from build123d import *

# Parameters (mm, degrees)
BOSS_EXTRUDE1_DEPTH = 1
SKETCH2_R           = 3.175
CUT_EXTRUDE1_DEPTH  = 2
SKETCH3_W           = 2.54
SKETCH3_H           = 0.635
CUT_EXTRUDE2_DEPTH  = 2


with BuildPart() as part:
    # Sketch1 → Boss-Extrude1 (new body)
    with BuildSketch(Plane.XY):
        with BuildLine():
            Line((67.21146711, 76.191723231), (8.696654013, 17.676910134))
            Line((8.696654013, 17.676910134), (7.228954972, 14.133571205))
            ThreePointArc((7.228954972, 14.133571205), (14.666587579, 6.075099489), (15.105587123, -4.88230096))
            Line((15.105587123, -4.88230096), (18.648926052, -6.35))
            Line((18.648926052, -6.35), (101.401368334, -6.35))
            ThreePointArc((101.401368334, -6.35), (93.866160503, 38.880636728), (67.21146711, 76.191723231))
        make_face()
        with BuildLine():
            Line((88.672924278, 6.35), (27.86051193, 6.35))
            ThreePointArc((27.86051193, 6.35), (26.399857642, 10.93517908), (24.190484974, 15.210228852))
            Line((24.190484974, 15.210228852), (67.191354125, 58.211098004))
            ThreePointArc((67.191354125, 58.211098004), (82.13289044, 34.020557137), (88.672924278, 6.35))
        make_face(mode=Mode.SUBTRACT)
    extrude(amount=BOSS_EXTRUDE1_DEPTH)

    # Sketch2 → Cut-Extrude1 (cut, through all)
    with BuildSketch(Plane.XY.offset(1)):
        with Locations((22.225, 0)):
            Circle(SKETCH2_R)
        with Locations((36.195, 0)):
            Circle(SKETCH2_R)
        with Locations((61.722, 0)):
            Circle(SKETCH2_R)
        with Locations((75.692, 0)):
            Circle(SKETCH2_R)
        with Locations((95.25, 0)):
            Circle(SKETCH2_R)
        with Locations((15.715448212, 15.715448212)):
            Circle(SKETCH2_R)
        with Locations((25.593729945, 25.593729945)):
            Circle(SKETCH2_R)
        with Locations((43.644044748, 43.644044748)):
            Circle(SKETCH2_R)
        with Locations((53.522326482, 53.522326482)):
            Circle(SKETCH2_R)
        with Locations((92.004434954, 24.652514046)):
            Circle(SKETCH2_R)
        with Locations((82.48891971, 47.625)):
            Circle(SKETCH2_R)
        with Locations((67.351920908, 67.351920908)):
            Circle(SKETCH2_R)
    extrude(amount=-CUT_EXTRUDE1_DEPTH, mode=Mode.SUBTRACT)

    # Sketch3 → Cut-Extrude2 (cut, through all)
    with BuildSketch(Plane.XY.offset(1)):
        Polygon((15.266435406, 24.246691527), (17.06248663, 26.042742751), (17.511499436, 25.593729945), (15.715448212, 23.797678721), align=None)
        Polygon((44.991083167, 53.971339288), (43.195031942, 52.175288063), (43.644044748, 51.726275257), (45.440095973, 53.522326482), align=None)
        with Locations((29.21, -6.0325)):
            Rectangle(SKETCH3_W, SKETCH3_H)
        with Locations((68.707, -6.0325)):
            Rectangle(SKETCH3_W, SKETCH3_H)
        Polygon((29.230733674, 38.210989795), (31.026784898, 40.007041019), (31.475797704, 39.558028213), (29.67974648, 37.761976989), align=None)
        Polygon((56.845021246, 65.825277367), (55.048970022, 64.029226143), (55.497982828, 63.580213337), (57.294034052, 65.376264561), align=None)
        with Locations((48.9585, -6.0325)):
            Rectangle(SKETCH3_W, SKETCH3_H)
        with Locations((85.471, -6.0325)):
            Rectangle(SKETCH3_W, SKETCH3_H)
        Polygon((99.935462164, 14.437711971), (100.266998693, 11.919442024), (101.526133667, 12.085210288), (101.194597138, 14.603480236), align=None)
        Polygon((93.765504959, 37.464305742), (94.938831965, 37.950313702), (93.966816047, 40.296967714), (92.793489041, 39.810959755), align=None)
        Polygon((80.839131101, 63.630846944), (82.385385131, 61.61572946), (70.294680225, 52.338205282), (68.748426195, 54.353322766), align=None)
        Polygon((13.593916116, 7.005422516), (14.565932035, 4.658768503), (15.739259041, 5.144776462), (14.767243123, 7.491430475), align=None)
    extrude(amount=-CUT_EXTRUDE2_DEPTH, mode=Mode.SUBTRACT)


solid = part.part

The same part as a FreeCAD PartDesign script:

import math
import FreeCAD as App
import Part
import Sketcher

V = App.Vector
Q = App.Units.Quantity

doc = App.newDocument("Part")
body = doc.addObject("PartDesign::Body", "Body")

sketch1 = body.newObject("Sketcher::SketchObject", "Sketch")
sketch1.AttachmentSupport = (doc.getObject("XY_Plane"), [""])
sketch1.MapMode = "FlatFace"
sketch1.addGeometry([
    Part.LineSegment(V(67.2, 76.2, 0), V(8.7, 17.7, 0)),
    Part.LineSegment(V(8.7, 17.7, 0), V(7.2, 14.1, 0)),
    Part.ArcOfCircle(Part.Circle(V(0, 0, 0), V(0, 0, 1), 15.9), math.radians(-18), math.radians(63)),
    Part.LineSegment(V(15.1, -4.9, 0), V(18.6, -6.3, 0)),
    Part.LineSegment(V(18.6, -6.3, 0), V(101.4, -6.3, 0)),
    Part.ArcOfCircle(Part.Circle(V(0, 0, 0), V(0, 0, 1), 101.6), math.radians(-4), math.radians(49)),
    Part.ArcOfCircle(Part.Circle(V(0, 0, 0), V(0, 0, 1), 88.9), math.radians(4), math.radians(41)),
    Part.LineSegment(V(88.7, 6.3, 0), V(27.9, 6.3, 0)),
    Part.ArcOfCircle(Part.Circle(V(0, 0, 0), V(0, 0, 1), 28.6), math.radians(12.84), math.radians(32.16)),
    Part.LineSegment(V(24.2, 15.2, 0), V(67.2, 58.2, 0)),
], False)
sketch1.addConstraint([
    Sketcher.Constraint("Coincident", 0, 2, 1, 1),
    Sketcher.Constraint("Coincident", 1, 2, 2, 2),
    Sketcher.Constraint("Coincident", 2, 1, 3, 1),
    Sketcher.Constraint("Coincident", 3, 2, 4, 1),
    Sketcher.Constraint("Coincident", 4, 2, 5, 1),
    Sketcher.Constraint("Coincident", 5, 2, 0, 1),
    Sketcher.Constraint("Coincident", 6, 1, 7, 1),
    Sketcher.Constraint("Coincident", 7, 2, 8, 1),
    Sketcher.Constraint("Coincident", 8, 2, 9, 1),
    Sketcher.Constraint("Coincident", 9, 2, 6, 2),
    Sketcher.Constraint("Horizontal", 4),
    Sketcher.Constraint("Horizontal", 7),
    Sketcher.Constraint("Coincident", 2, 3, -1, 1),
    Sketcher.Constraint("Coincident", 5, 3, -1, 1),
    Sketcher.Constraint("Coincident", 6, 3, -1, 1),
    Sketcher.Constraint("Coincident", 8, 3, -1, 1),
    Sketcher.Constraint("Perpendicular", 1, 3),
    Sketcher.Constraint("Parallel", 0, 9),
    Sketcher.Constraint("Equal", 1, 3),
    Sketcher.Constraint("Radius", 5, Q("4 in")),
    Sketcher.Constraint("Radius", 6, Q("3.5 in")),
    Sketcher.Constraint("Angle", 0, Q("-135 deg")),
    Sketcher.Constraint("Radius", 2, Q("0.625 in")),
    Sketcher.Constraint("Radius", 8, Q("1.125 in")),
    Sketcher.Constraint("Angle", 1, Q("-112.5 deg")),
    Sketcher.Constraint("DistanceY", 4, 2, 6, 1, Q("0.5 in")),
    Sketcher.Constraint("DistanceY", 3, 2, -1, 1, Q("0.25 in")),
    Sketcher.Constraint("DistanceY", 2, 1, -1, 1, 4.882301),
    Sketcher.Constraint("DistanceY", -1, 1, 9, 2, 58.211098),
    Sketcher.Constraint("DistanceX", 5, 2, 4, 2, 34.189901),
])
pad1 = body.newObject("PartDesign::Pad", "Pad")
pad1.Profile = sketch1
pad1.Length = 1

sketch2 = body.newObject("Sketcher::SketchObject", "Sketch001")
sketch2.AttachmentSupport = (doc.getObject("XY_Plane"), [""])
sketch2.MapMode = "FlatFace"
sketch2.AttachmentOffset = App.Placement(V(0, 0, 1), App.Rotation())
sketch2.addGeometry([
    Part.Circle(V(22.2, 0, 0), V(0, 0, 1), 3.2),
    Part.Circle(V(36.2, 0, 0), V(0, 0, 1), 3.2),
    Part.Circle(V(61.7, 0, 0), V(0, 0, 1), 3.2),
    Part.Circle(V(75.7, 0, 0), V(0, 0, 1), 3.2),
    Part.Circle(V(95.2, 0, 0), V(0, 0, 1), 3.2),
    Part.Circle(V(15.7, 15.7, 0), V(0, 0, 1), 3.2),
    Part.Circle(V(25.6, 25.6, 0), V(0, 0, 1), 3.2),
    Part.Circle(V(43.6, 43.6, 0), V(0, 0, 1), 3.2),
    Part.Circle(V(53.5, 53.5, 0), V(0, 0, 1), 3.2),
    Part.Circle(V(92, 24.7, 0), V(0, 0, 1), 3.2),
    Part.Circle(V(82.5, 47.6, 0), V(0, 0, 1), 3.2),
    Part.Circle(V(67.4, 67.4, 0), V(0, 0, 1), 3.2),
], False)
sketch2.addConstraint([
    Sketcher.Constraint("Equal", 0, 1),
    Sketcher.Constraint("Equal", 1, 2),
    Sketcher.Constraint("Equal", 2, 3),
    Sketcher.Constraint("Equal", 3, 4),
    Sketcher.Constraint("Equal", 4, 5),
    Sketcher.Constraint("Equal", 5, 6),
    Sketcher.Constraint("Equal", 6, 7),
    Sketcher.Constraint("Equal", 7, 8),
    Sketcher.Constraint("Equal", 8, 9),
    Sketcher.Constraint("Equal", 9, 10),
    Sketcher.Constraint("Equal", 10, 11),
    Sketcher.Constraint("PointOnObject", 0, 3, -1),
    Sketcher.Constraint("PointOnObject", 1, 3, -1),
    Sketcher.Constraint("PointOnObject", 2, 3, -1),
    Sketcher.Constraint("PointOnObject", 3, 3, -1),
    Sketcher.Constraint("PointOnObject", 4, 3, -1),
    Sketcher.Constraint("Diameter", 0, Q("0.25 in")),
    Sketcher.Constraint("DistanceX", -1, 1, 2, 3, Q("2.43 in")),
    Sketcher.Constraint("DistanceX", -1, 1, 3, 3, Q("2.98 in")),
    Sketcher.Constraint("DistanceX", -1, 1, 4, 3, Q("3.75 in")),
    Sketcher.Constraint("DistanceX", 0, 3, 1, 3, Q("0.55 in")),
    Sketcher.Constraint("DistanceX", -1, 1, 0, 3, Q("0.875 in")),
    Sketcher.Constraint("DistanceY", -1, 1, 10, 3, Q("1.875 in")),
    Sketcher.Constraint("DistanceX", 11, 3, 10, 3, 15.136999),
    Sketcher.Constraint("DistanceX", -1, 1, 5, 3, 15.715448),
    Sketcher.Constraint("DistanceY", -1, 1, 5, 3, 15.715448),
    Sketcher.Constraint("DistanceX", -1, 1, 6, 3, 25.59373),
    Sketcher.Constraint("DistanceY", -1, 1, 6, 3, 25.59373),
    Sketcher.Constraint("DistanceX", -1, 1, 10, 3, 82.48892),
    Sketcher.Constraint("DistanceY", -1, 1, 11, 3, 67.351921),
    Sketcher.Constraint("DistanceX", 7, 3, 8, 3, 9.878282),
    Sketcher.Constraint("DistanceY", 7, 3, 8, 3, 9.878282),
    Sketcher.Constraint("DistanceX", 5, 3, 8, 3, 37.806878),
    Sketcher.Constraint("DistanceY", 5, 3, 8, 3, 37.806878),
    Sketcher.Constraint("DistanceX", 8, 3, 9, 3, 38.482108),
    Sketcher.Constraint("DistanceY", 9, 3, 7, 3, 18.991531),
])
pocket1 = body.newObject("PartDesign::Pocket", "Pocket")
pocket1.Profile = sketch2
pocket1.Type = "ThroughAll"

sketch3 = body.newObject("Sketcher::SketchObject", "Sketch002")
sketch3.AttachmentSupport = (doc.getObject("XY_Plane"), [""])
sketch3.MapMode = "FlatFace"
sketch3.AttachmentOffset = App.Placement(V(0, 0, 1), App.Rotation())
sketch3.addGeometry([
    Part.LineSegment(V(17.1, 26, 0), V(15.3, 24.2, 0)),
    Part.LineSegment(V(15.3, 24.2, 0), V(15.7, 23.8, 0)),
    Part.LineSegment(V(15.7, 23.8, 0), V(17.5, 25.6, 0)),
    Part.LineSegment(V(17.5, 25.6, 0), V(17.1, 26, 0)),
    Part.LineSegment(V(45, 54, 0), V(43.2, 52.2, 0)),
    Part.LineSegment(V(43.2, 52.2, 0), V(43.6, 51.7, 0)),
    Part.LineSegment(V(43.6, 51.7, 0), V(45.4, 53.5, 0)),
    Part.LineSegment(V(45.4, 53.5, 0), V(45, 54, 0)),
    Part.LineSegment(V(27.9, -5.7, 0), V(27.9, -6.3, 0)),
    Part.LineSegment(V(27.9, -6.3, 0), V(30.5, -6.3, 0)),
    Part.LineSegment(V(30.5, -6.3, 0), V(30.5, -5.7, 0)),
    Part.LineSegment(V(30.5, -5.7, 0), V(27.9, -5.7, 0)),
    Part.LineSegment(V(67.4, -5.7, 0), V(67.4, -6.3, 0)),
    Part.LineSegment(V(67.4, -6.3, 0), V(70, -6.3, 0)),
    Part.LineSegment(V(70, -6.3, 0), V(70, -5.7, 0)),
    Part.LineSegment(V(70, -5.7, 0), V(67.4, -5.7, 0)),
    Part.LineSegment(V(31, 40, 0), V(29.2, 38.2, 0)),
    Part.LineSegment(V(29.2, 38.2, 0), V(29.7, 37.8, 0)),
    Part.LineSegment(V(29.7, 37.8, 0), V(31.5, 39.6, 0)),
    Part.LineSegment(V(31.5, 39.6, 0), V(31, 40, 0)),
    Part.LineSegment(V(56.8, 65.8, 0), V(55, 64, 0)),
    Part.LineSegment(V(55, 64, 0), V(55.5, 63.6, 0)),
    Part.LineSegment(V(55.5, 63.6, 0), V(57.3, 65.4, 0)),
    Part.LineSegment(V(57.3, 65.4, 0), V(56.8, 65.8, 0)),
    Part.LineSegment(V(47.7, -5.7, 0), V(47.7, -6.3, 0)),
    Part.LineSegment(V(47.7, -6.3, 0), V(50.2, -6.3, 0)),
    Part.LineSegment(V(50.2, -6.3, 0), V(50.2, -5.7, 0)),
    Part.LineSegment(V(50.2, -5.7, 0), V(47.7, -5.7, 0)),
    Part.LineSegment(V(84.2, -5.7, 0), V(84.2, -6.3, 0)),
    Part.LineSegment(V(84.2, -6.3, 0), V(86.7, -6.3, 0)),
    Part.LineSegment(V(86.7, -6.3, 0), V(86.7, -5.7, 0)),
    Part.LineSegment(V(86.7, -5.7, 0), V(84.2, -5.7, 0)),
    Part.LineSegment(V(99.9, 14.4, 0), V(100.3, 11.9, 0)),
    Part.LineSegment(V(100.3, 11.9, 0), V(101.5, 12.1, 0)),
    Part.LineSegment(V(101.5, 12.1, 0), V(101.2, 14.6, 0)),
    Part.LineSegment(V(101.2, 14.6, 0), V(99.9, 14.4, 0)),
    Part.LineSegment(V(93.8, 37.5, 0), V(94.9, 38, 0)),
    Part.LineSegment(V(94.9, 38, 0), V(94, 40.3, 0)),
    Part.LineSegment(V(94, 40.3, 0), V(92.8, 39.8, 0)),
    Part.LineSegment(V(92.8, 39.8, 0), V(93.8, 37.5, 0)),
    Part.LineSegment(V(82.4, 61.6, 0), V(80.8, 63.6, 0)),
    Part.LineSegment(V(80.8, 63.6, 0), V(68.7, 54.4, 0)),
    Part.LineSegment(V(68.7, 54.4, 0), V(70.3, 52.3, 0)),
    Part.LineSegment(V(70.3, 52.3, 0), V(82.4, 61.6, 0)),
    Part.LineSegment(V(13.6, 7, 0), V(14.6, 4.7, 0)),
    Part.LineSegment(V(14.6, 4.7, 0), V(15.7, 5.1, 0)),
    Part.LineSegment(V(15.7, 5.1, 0), V(14.8, 7.5, 0)),
    Part.LineSegment(V(14.8, 7.5, 0), V(13.6, 7, 0)),
], False)
sketch3.addConstraint([
    Sketcher.Constraint("Coincident", 0, 2, 1, 1),
    Sketcher.Constraint("Coincident", 1, 2, 2, 1),
    Sketcher.Constraint("Coincident", 2, 2, 3, 1),
    Sketcher.Constraint("Coincident", 3, 2, 0, 1),
    Sketcher.Constraint("Coincident", 4, 2, 5, 1),
    Sketcher.Constraint("Coincident", 5, 2, 6, 1),
    Sketcher.Constraint("Coincident", 6, 2, 7, 1),
    Sketcher.Constraint("Coincident", 7, 2, 4, 1),
    Sketcher.Constraint("Coincident", 8, 2, 9, 1),
    Sketcher.Constraint("Coincident", 9, 2, 10, 1),
    Sketcher.Constraint("Coincident", 10, 2, 11, 1),
    Sketcher.Constraint("Coincident", 11, 2, 8, 1),
    Sketcher.Constraint("Coincident", 12, 2, 13, 1),
    Sketcher.Constraint("Coincident", 13, 2, 14, 1),
    Sketcher.Constraint("Coincident", 14, 2, 15, 1),
    Sketcher.Constraint("Coincident", 15, 2, 12, 1),
    Sketcher.Constraint("Coincident", 16, 2, 17, 1),
    Sketcher.Constraint("Coincident", 17, 2, 18, 1),
    Sketcher.Constraint("Coincident", 18, 2, 19, 1),
    Sketcher.Constraint("Coincident", 19, 2, 16, 1),
    Sketcher.Constraint("Coincident", 20, 2, 21, 1),
    Sketcher.Constraint("Coincident", 21, 2, 22, 1),
    Sketcher.Constraint("Coincident", 22, 2, 23, 1),
    Sketcher.Constraint("Coincident", 23, 2, 20, 1),
    Sketcher.Constraint("Coincident", 24, 2, 25, 1),
    Sketcher.Constraint("Coincident", 25, 2, 26, 1),
    Sketcher.Constraint("Coincident", 26, 2, 27, 1),
    Sketcher.Constraint("Coincident", 27, 2, 24, 1),
    Sketcher.Constraint("Coincident", 28, 2, 29, 1),
    Sketcher.Constraint("Coincident", 29, 2, 30, 1),
    Sketcher.Constraint("Coincident", 30, 2, 31, 1),
    Sketcher.Constraint("Coincident", 31, 2, 28, 1),
    Sketcher.Constraint("Coincident", 32, 2, 33, 1),
    Sketcher.Constraint("Coincident", 33, 2, 34, 1),
    Sketcher.Constraint("Coincident", 34, 2, 35, 1),
    Sketcher.Constraint("Coincident", 35, 2, 32, 1),
    Sketcher.Constraint("Coincident", 36, 2, 37, 1),
    Sketcher.Constraint("Coincident", 37, 2, 38, 1),
    Sketcher.Constraint("Coincident", 38, 2, 39, 1),
    Sketcher.Constraint("Coincident", 39, 2, 36, 1),
    Sketcher.Constraint("Coincident", 40, 2, 41, 1),
    Sketcher.Constraint("Coincident", 41, 2, 42, 1),
    Sketcher.Constraint("Coincident", 42, 2, 43, 1),
    Sketcher.Constraint("Coincident", 43, 2, 40, 1),
    Sketcher.Constraint("Coincident", 44, 2, 45, 1),
    Sketcher.Constraint("Coincident", 45, 2, 46, 1),
    Sketcher.Constraint("Coincident", 46, 2, 47, 1),
    Sketcher.Constraint("Coincident", 47, 2, 44, 1),
    Sketcher.Constraint("Vertical", 8),
    Sketcher.Constraint("Horizontal", 9),
    Sketcher.Constraint("Vertical", 10),
    Sketcher.Constraint("Horizontal", 11),
    Sketcher.Constraint("Vertical", 12),
    Sketcher.Constraint("Horizontal", 13),
    Sketcher.Constraint("Vertical", 14),
    Sketcher.Constraint("Horizontal", 15),
    Sketcher.Constraint("Vertical", 24),
    Sketcher.Constraint("Horizontal", 25),
    Sketcher.Constraint("Vertical", 26),
    Sketcher.Constraint("Horizontal", 27),
    Sketcher.Constraint("Vertical", 28),
    Sketcher.Constraint("Horizontal", 29),
    Sketcher.Constraint("Vertical", 30),
    Sketcher.Constraint("Horizontal", 31),
    Sketcher.Constraint("Perpendicular", 0, 1),
    Sketcher.Constraint("Perpendicular", 1, 2),
    Sketcher.Constraint("Perpendicular", 2, 3),
    Sketcher.Constraint("Perpendicular", 3, 4),
    Sketcher.Constraint("Perpendicular", 4, 5),
    Sketcher.Constraint("Perpendicular", 5, 6),
    Sketcher.Constraint("Perpendicular", 6, 7),
    Sketcher.Constraint("Perpendicular", 7, 16),
    Sketcher.Constraint("Perpendicular", 16, 17),
    Sketcher.Constraint("Perpendicular", 17, 18),
    Sketcher.Constraint("Perpendicular", 18, 19),
    Sketcher.Constraint("Perpendicular", 19, 20),
    Sketcher.Constraint("Perpendicular", 20, 21),
    Sketcher.Constraint("Perpendicular", 21, 22),
    Sketcher.Constraint("Perpendicular", 22, 23),
    Sketcher.Constraint("Perpendicular", 32, 33),
    Sketcher.Constraint("Perpendicular", 33, 34),
    Sketcher.Constraint("Perpendicular", 34, 35),
    Sketcher.Constraint("Perpendicular", 36, 37),
    Sketcher.Constraint("Perpendicular", 37, 38),
    Sketcher.Constraint("Perpendicular", 38, 39),
    Sketcher.Constraint("Perpendicular", 40, 41),
    Sketcher.Constraint("Perpendicular", 41, 42),
    Sketcher.Constraint("Perpendicular", 42, 43),
    Sketcher.Constraint("Parallel", 39, 44),
    Sketcher.Constraint("Perpendicular", 44, 45),
    Sketcher.Constraint("Perpendicular", 45, 46),
    Sketcher.Constraint("Perpendicular", 46, 47),
    Sketcher.Constraint("Horizontal", 9, 2, 12, 2),
    Sketcher.Constraint("Horizontal", 11, 2, 14, 2),
    Sketcher.Constraint("Horizontal", 13, 2, 24, 2),
    Sketcher.Constraint("Horizontal", 15, 2, 26, 2),
    Sketcher.Constraint("Horizontal", 25, 2, 28, 2),
    Sketcher.Constraint("Horizontal", 27, 2, 30, 2),
    Sketcher.Constraint("Equal", 11, 13),
    Sketcher.Constraint("Equal", 15, 25),
    Sketcher.Constraint("Equal", 27, 29),
    Sketcher.Constraint("Equal", 2, 4),
    Sketcher.Constraint("Equal", 3, 5),
    Sketcher.Constraint("Equal", 6, 16),
    Sketcher.Constraint("Equal", 7, 17),
    Sketcher.Constraint("Equal", 18, 20),
    Sketcher.Constraint("Equal", 19, 21),
    Sketcher.Constraint("Equal", 22, 32),
    Sketcher.Constraint("Equal", 35, 36),
    Sketcher.Constraint("Equal", 34, 37),
    Sketcher.Constraint("Equal", 39, 40),
    Sketcher.Constraint("Equal", 42, 44),
    Sketcher.Constraint("Equal", 38, 45),
    Sketcher.Constraint("DistanceX", 9, 1, 9, 2, Q("0.1 in")),
    Sketcher.Constraint("Angle", 0, Q("-135 deg")),
    Sketcher.Constraint("Distance", 0, Q("0.1 in")),
    Sketcher.Constraint("Distance", 41, Q("0.6 in")),
    Sketcher.Constraint("DistanceX", -1, 1, 8, 2, Q("1.1 in")),
    Sketcher.Constraint("Angle", 32, Q("-82.5 deg")),
    Sketcher.Constraint("Angle", 36, Q("22.5 deg")),
    Sketcher.Constraint("Angle", 40, Q("127.5 deg")),
    Sketcher.Constraint("Distance", 33, Q("0.05 in")),
    Sketcher.Constraint("DistanceY", 8, 2, 8, 1, Q("0.025 in")),
    Sketcher.Constraint("DistanceY", 8, 2, -1, 1, Q("0.25 in")),
    Sketcher.Constraint("DistanceX", 13, 2, 28, 2, Q("0.56 in")),
    Sketcher.Constraint("Distance", 1, Q("0.025 in")),
    Sketcher.Constraint("DistanceX", -1, 1, 12, 2, Q("2.655 in")),
    Sketcher.Constraint("DistanceX", -1, 1, 24, 2, Q("1.8775 in")),
    Sketcher.Constraint("DistanceX", -1, 1, 2, 2, 17.511499),
    Sketcher.Constraint("DistanceX", -1, 1, 32, 2, 100.266999),
    Sketcher.Constraint("DistanceX", 16, 2, 4, 2, 13.964298),
    Sketcher.Constraint("DistanceY", 16, 2, 4, 2, 13.964298),
    Sketcher.Constraint("DistanceX", 0, 2, 16, 2, 13.964298),
    Sketcher.Constraint("DistanceY", 0, 2, 16, 2, 13.964298),
    Sketcher.Constraint("DistanceY", 6, 2, 20, 2, 10.5069),
    Sketcher.Constraint("DistanceX", 7, 2, 21, 2, 10.5069),
    Sketcher.Constraint("DistanceY", 35, 2, 36, 2, 23.512602),
    Sketcher.Constraint("DistanceX", 36, 2, 33, 2, 6.587302),
    Sketcher.Constraint("DistanceY", 46, 2, 2, 2, 18.102299),
    Sketcher.Constraint("DistanceY", -1, 1, 0, 2, 24.246692),
    Sketcher.Constraint("DistanceY", -1, 1, 33, 2, 12.08521),
    Sketcher.Constraint("DistanceX", -1, 1, 40, 2, 80.839131),
    Sketcher.Constraint("DistanceY", -1, 1, 43, 2, 61.615729),
    Sketcher.Constraint("DistanceX", -1, 1, 45, 2, 15.739259),
])
pocket2 = body.newObject("PartDesign::Pocket", "Pocket001")
pocket2.Profile = sketch3
pocket2.Type = "ThroughAll"

doc.recompute()
